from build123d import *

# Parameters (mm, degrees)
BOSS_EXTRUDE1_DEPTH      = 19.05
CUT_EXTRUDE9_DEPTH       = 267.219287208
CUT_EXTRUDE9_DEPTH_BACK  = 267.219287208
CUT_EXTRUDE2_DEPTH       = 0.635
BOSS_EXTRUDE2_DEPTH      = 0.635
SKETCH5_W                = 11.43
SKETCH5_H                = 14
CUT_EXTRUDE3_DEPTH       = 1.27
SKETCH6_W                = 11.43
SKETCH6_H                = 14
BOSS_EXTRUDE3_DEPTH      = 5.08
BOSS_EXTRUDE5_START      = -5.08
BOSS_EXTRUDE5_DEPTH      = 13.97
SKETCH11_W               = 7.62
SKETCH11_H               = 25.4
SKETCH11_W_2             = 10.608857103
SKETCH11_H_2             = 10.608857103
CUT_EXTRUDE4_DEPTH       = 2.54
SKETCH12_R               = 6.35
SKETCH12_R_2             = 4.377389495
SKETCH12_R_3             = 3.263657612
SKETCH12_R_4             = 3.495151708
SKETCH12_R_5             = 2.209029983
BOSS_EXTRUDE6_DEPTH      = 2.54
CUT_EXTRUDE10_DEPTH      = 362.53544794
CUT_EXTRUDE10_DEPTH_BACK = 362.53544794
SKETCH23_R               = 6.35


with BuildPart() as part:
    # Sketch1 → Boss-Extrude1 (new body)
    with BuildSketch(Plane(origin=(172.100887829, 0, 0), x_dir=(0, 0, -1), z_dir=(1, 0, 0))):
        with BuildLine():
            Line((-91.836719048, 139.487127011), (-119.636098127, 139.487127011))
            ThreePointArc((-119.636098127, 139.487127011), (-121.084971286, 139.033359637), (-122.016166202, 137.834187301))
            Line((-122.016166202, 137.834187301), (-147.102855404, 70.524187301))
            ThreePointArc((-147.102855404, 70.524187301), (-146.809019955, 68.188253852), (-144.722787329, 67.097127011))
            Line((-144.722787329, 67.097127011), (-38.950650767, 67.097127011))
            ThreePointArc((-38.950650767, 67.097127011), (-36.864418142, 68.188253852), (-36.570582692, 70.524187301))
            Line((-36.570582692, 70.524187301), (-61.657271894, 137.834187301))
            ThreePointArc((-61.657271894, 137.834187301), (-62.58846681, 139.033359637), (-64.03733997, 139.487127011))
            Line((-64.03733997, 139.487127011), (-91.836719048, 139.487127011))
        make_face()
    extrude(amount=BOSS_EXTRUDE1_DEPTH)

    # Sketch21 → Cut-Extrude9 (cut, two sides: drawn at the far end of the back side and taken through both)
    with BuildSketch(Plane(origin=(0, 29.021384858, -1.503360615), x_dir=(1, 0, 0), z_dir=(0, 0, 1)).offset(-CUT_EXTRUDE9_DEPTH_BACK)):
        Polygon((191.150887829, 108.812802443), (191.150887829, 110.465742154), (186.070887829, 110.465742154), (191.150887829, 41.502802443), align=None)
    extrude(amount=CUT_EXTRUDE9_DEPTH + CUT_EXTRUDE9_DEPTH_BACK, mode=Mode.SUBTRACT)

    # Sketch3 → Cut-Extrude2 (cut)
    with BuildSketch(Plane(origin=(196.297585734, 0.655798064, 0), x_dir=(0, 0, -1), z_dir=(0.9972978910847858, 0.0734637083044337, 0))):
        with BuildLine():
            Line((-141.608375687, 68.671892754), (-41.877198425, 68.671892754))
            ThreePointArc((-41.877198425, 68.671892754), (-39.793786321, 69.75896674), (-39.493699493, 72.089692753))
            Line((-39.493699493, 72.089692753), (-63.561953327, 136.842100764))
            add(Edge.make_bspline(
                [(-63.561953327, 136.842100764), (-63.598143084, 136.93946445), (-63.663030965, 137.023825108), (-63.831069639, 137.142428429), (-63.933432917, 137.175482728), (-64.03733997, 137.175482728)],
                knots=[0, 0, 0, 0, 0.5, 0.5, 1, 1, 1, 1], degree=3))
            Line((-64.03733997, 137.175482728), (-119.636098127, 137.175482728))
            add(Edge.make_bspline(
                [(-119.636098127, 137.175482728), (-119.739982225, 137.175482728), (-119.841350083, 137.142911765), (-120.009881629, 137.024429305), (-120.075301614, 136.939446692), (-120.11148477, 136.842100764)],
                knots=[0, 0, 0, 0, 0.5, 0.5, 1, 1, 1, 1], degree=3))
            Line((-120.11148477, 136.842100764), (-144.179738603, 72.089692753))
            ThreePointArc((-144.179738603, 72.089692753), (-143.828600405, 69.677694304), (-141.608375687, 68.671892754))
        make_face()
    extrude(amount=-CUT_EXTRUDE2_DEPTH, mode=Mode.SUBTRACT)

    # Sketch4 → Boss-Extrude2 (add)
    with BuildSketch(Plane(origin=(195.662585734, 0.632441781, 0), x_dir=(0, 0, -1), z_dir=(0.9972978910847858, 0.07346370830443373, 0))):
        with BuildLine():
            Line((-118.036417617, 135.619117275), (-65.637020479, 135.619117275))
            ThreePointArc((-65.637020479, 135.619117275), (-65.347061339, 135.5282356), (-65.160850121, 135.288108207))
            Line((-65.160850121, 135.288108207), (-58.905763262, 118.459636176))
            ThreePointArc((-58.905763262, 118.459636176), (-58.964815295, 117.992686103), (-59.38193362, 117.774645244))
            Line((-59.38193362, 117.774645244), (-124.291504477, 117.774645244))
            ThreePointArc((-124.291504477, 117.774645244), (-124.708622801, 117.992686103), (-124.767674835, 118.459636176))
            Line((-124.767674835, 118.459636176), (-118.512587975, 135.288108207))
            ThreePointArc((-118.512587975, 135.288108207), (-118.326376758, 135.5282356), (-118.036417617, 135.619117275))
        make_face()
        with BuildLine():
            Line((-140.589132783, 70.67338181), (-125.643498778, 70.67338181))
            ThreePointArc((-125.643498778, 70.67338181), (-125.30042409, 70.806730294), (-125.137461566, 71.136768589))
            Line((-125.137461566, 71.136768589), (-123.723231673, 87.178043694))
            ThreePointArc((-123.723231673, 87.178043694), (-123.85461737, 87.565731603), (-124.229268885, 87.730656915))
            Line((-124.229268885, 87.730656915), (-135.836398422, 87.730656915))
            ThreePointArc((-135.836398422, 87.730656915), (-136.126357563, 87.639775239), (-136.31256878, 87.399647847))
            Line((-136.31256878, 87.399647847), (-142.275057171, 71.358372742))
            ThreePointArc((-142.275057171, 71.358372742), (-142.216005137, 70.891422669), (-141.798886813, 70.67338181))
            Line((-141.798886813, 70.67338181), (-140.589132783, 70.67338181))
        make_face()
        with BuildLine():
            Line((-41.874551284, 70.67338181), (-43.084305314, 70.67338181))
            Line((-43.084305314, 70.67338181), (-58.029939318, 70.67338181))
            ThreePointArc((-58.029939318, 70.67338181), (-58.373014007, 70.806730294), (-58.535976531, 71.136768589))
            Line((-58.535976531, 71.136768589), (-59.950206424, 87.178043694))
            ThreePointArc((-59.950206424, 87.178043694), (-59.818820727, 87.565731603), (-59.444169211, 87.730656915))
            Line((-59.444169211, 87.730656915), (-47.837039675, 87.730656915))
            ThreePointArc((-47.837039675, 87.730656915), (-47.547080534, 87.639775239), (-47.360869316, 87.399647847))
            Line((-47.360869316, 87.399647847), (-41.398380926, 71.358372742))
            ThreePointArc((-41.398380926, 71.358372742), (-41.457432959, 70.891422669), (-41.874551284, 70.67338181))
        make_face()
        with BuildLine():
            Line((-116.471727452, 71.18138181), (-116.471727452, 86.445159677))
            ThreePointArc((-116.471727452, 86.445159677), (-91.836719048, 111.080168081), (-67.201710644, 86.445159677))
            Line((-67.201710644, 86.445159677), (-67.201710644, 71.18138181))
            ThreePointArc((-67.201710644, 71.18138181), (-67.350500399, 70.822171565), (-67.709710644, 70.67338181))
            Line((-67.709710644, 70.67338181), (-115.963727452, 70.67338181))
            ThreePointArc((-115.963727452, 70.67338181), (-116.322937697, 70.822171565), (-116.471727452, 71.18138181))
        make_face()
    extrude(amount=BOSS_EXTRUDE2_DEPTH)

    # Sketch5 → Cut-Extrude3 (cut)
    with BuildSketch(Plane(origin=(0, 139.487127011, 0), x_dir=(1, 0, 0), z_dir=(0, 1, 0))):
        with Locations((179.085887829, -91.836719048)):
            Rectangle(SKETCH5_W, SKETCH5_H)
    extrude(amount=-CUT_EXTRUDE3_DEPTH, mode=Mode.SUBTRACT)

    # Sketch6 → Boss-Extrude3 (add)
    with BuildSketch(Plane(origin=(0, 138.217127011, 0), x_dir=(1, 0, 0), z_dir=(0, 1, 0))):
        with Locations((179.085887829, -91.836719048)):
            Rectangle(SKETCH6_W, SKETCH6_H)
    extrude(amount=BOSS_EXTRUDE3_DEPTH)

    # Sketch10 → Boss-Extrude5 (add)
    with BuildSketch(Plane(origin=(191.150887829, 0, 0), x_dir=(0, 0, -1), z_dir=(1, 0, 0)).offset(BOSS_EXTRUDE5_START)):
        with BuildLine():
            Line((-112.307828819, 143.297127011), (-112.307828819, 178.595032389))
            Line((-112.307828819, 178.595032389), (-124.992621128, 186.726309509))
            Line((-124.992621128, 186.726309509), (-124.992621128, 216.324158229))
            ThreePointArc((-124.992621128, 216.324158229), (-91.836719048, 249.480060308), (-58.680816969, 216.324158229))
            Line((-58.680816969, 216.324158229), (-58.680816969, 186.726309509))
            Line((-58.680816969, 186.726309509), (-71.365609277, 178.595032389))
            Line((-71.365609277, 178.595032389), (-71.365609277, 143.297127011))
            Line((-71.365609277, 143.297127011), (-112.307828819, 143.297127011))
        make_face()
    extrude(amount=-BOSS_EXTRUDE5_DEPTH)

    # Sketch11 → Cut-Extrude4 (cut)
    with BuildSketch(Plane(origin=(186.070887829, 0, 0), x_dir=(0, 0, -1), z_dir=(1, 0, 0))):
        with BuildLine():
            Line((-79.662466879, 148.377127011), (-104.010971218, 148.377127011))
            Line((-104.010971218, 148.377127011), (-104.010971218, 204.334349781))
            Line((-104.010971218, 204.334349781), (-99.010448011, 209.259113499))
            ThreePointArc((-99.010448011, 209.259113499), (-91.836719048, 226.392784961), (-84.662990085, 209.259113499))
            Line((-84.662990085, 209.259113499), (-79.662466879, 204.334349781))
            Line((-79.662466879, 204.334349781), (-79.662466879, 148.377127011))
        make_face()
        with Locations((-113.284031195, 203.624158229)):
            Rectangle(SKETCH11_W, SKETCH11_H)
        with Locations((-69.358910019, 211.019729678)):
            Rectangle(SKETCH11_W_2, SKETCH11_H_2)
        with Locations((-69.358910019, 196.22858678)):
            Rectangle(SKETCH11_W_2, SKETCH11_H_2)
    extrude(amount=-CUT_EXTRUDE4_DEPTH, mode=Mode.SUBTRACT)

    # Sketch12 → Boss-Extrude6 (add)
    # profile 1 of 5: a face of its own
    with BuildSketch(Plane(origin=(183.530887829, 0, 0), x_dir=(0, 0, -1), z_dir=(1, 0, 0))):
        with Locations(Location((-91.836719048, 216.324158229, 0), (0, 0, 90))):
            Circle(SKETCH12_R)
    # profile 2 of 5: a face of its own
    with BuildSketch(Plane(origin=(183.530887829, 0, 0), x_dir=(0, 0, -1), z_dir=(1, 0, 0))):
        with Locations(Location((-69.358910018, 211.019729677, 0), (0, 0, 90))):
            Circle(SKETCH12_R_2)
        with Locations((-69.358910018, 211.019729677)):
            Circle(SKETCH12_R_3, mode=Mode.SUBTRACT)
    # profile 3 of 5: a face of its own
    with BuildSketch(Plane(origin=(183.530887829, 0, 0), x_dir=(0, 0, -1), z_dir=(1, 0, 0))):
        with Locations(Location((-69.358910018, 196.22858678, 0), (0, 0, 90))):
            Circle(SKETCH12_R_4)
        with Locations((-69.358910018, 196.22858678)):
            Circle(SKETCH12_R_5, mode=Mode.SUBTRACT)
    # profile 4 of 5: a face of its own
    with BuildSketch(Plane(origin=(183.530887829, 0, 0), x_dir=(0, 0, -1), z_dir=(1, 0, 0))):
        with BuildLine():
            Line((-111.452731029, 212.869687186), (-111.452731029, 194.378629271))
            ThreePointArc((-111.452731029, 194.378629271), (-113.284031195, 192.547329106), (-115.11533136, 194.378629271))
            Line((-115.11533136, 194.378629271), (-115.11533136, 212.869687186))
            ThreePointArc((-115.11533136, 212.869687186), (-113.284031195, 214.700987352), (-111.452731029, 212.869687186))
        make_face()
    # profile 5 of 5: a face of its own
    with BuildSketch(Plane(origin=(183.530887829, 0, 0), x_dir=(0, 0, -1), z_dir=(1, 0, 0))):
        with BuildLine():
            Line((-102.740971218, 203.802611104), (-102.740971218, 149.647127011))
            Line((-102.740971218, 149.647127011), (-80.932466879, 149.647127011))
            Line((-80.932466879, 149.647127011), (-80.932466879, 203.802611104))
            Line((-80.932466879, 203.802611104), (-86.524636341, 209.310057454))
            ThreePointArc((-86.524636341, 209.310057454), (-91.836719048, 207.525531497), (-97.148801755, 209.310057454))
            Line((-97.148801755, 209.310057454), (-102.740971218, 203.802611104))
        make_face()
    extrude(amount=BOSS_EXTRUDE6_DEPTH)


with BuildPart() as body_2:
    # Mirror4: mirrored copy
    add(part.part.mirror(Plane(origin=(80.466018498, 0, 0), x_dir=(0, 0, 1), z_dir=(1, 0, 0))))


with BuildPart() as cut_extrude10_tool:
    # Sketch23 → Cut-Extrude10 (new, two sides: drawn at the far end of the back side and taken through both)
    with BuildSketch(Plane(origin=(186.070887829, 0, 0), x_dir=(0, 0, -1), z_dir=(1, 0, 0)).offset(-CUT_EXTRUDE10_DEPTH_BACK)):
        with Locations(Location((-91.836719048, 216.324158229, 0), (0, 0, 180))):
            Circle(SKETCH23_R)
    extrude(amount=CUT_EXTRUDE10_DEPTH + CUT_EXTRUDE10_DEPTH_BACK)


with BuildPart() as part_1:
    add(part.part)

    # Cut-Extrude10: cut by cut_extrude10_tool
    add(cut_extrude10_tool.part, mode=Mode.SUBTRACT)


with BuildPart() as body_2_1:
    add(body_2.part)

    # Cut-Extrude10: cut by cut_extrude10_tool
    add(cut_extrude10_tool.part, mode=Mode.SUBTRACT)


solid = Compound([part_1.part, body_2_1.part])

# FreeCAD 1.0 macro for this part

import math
import FreeCAD as App
import Part
import Sketcher
from FreeCAD import Vector
Q = App.Units.Quantity


def add_polygon(sketch, points):
    """Adds a closed chain of lines whose ends are joined by coincident constraints."""
    first, n = sketch.GeometryCount, len(points)
    for a, b in zip(points, points[1:] + points[:1]):
        sketch.addGeometry(Part.LineSegment(App.Vector(*a, 0), App.Vector(*b, 0)), False)
    for i in range(n):
        sketch.addConstraint(Sketcher.Constraint("Coincident", first + i, 2, first + (i + 1) % n, 1))

doc = App.newDocument("Part")
body = doc.addObject("PartDesign::Body", "Body")

sketch1 = body.newObject("Sketcher::SketchObject", "Sketch")
sketch1.AttachmentSupport = (doc.getObject("YZ_Plane"), [""])
sketch1.MapMode = "FlatFace"
sketch1.AttachmentOffset = App.Placement(Vector(0, 0, 172.100888), App.Rotation())
sketch1.addGeometry([
    Part.ArcOfCircle(Part.Circle(Vector(136.947127, 119.636098, 0), Vector(0, 0, 1), 2.54), math.radians(0), math.radians(69.559387)),
    Part.LineSegment(Vector(137.834187, 122.016166, 0), Vector(70.524187, 147.102855, 0)),
    Part.ArcOfCircle(Part.Circle(Vector(69.637127, 144.722787, 0), Vector(0, 0, 1), 2.54), math.radians(69.559387), math.radians(180)),
    Part.LineSegment(Vector(67.097127, 144.722787, 0), Vector(67.097127, 38.950651, 0)),
    Part.ArcOfCircle(Part.Circle(Vector(69.637127, 38.950651, 0), Vector(0, 0, 1), 2.54), math.radians(-180), math.radians(-69.559387)),
    Part.LineSegment(Vector(70.524187, 36.570583, 0), Vector(137.834187, 61.657272, 0)),
    Part.ArcOfCircle(Part.Circle(Vector(136.947127, 64.03734, 0), Vector(0, 0, 1), 2.54), math.radians(-69.559387), math.radians(0)),
    Part.LineSegment(Vector(139.487127, 64.03734, 0), Vector(139.487127, 119.636098, 0)),
], False)
sketch1.addConstraint([
    Sketcher.Constraint("Tangent", 0, 2, 1, 1),
    Sketcher.Constraint("Tangent", 1, 2, 2, 1),
    Sketcher.Constraint("Tangent", 2, 2, 3, 1),
    Sketcher.Constraint("Tangent", 3, 2, 4, 1),
    Sketcher.Constraint("Tangent", 4, 2, 5, 1),
    Sketcher.Constraint("Tangent", 5, 2, 6, 1),
    Sketcher.Constraint("Tangent", 6, 2, 7, 1),
    Sketcher.Constraint("Tangent", 7, 2, 0, 1),
    Sketcher.Constraint("Vertical", 3),
    Sketcher.Constraint("Vertical", 7),
    Sketcher.Constraint("Equal", 0, 2),
    Sketcher.Constraint("Equal", 2, 4),
    Sketcher.Constraint("Equal", 4, 6),
    Sketcher.Constraint("Vertical", 1, 2, 4, 2),
    Sketcher.Constraint("Radius", 0, Q("0.1 in")),
    Sketcher.Constraint("DistanceX", 2, 3, 0, 3, Q("2.65 in")),
    Sketcher.Constraint("DistanceY", 7, 1, 7, 2, Q("55.598758 mm")),
    Sketcher.Constraint("DistanceY", -1, 1, 0, 3, Q("119.636098 mm")),
    Sketcher.Constraint("DistanceY", 3, 2, 3, 1, Q("105.772137 mm")),
    Sketcher.Constraint("DistanceX", -1, 1, 0, 3, Q("136.947127 mm")),
])
pad1 = body.newObject("PartDesign::Pad", "Pad")
pad1.Profile = sketch1
pad1.Length = Q("0.75 in")

sketch2 = body.newObject("Sketcher::SketchObject", "Sketch001")
sketch2.AttachmentSupport = (doc.getObject("XY_Plane"), [""])
sketch2.MapMode = "FlatFace"
sketch2.AttachmentOffset = App.Placement(Vector(0, 0, -1.503361), App.Rotation())
add_polygon(sketch2, [(191.150888, 139.487127), (186.070888, 139.487127), (191.150888, 70.524187)])
sketch2.addConstraint([
    Sketcher.Constraint("Horizontal", 0),
    Sketcher.Constraint("Vertical", 2),
    Sketcher.Constraint("DistanceX", 0, 2, 0, 1, Q("0.2 in")),
    Sketcher.Constraint("DistanceY", 2, 1, 2, 2, Q("68.96294 mm")),
    Sketcher.Constraint("DistanceX", -1, 1, 0, 2, Q("186.070888 mm")),
    Sketcher.Constraint("DistanceY", -1, 1, 0, 2, Q("139.487127 mm")),
])
pocket1 = body.newObject("PartDesign::Pocket", "Pocket")
pocket1.Profile = sketch2
pocket1.Type = "ThroughAll"
pocket1.Midplane = True

sketch3 = body.newObject("Sketcher::SketchObject", "Sketch002")
sketch3.Placement = App.Placement(Vector(196.297586, 0.655798, 0), App.Rotation(Vector(0, 0, -1), Vector(-0.073463708, 0.997297891, 0), Vector(0.997297891, 0.073463708, 0), "ZXY"))
sketch3.addGeometry([
    Part.LineSegment(Vector(-141.608376, 68.671893, 0), Vector(-41.877198, 68.671893, 0)),
    Part.ArcOfCircle(Part.Circle(Vector(-41.877198, 71.211893, 0), Vector(0, 0, 1), 2.54), math.radians(-90), math.radians(20.217849)),
    Part.LineSegment(Vector(-39.493699, 72.089693, 0), Vector(-63.561953, 136.842101, 0)),
    Part.BSplineCurve([Vector(-63.561953, 136.842101, 0), Vector(-63.598143, 136.939464, 0), Vector(-63.663031, 137.023825, 0), Vector(-63.83107, 137.142428, 0), Vector(-63.933433, 137.175483, 0), Vector(-64.03734, 137.175483, 0)], [4, 2, 4], [0, 0.5, 1], False, 3, [1, 1, 1, 1, 1, 1], False),
    Part.LineSegment(Vector(-64.03734, 137.175483, 0), Vector(-119.636098, 137.175483, 0)),
    Part.BSplineCurve([Vector(-119.636098, 137.175483, 0), Vector(-119.739982, 137.175483, 0), Vector(-119.84135, 137.142912, 0), Vector(-120.009882, 137.024429, 0), Vector(-120.075302, 136.939447, 0), Vector(-120.111485, 136.842101, 0)], [4, 2, 4], [0, 0.5, 1], False, 3, [1, 1, 1, 1, 1, 1], False),
    Part.LineSegment(Vector(-120.111485, 136.842101, 0), Vector(-144.179739, 72.089693, 0)),
    Part.ArcOfCircle(Part.Circle(Vector(-141.798887, 71.204738, 0), Vector(0, 0, 1), 2.54), math.radians(159.610068), math.radians(274.301474)),
], False)
sketch3.addConstraint([
    Sketcher.Constraint("Block", 3),
    Sketcher.Constraint("Block", 5),
    Sketcher.Constraint("Coincident", 0, 2, 1, 1),
    Sketcher.Constraint("Coincident", 1, 2, 2, 1),
    Sketcher.Constraint("Coincident", 2, 2, 3, 1),
    Sketcher.Constraint("Coincident", 3, 2, 4, 1),
    Sketcher.Constraint("Coincident", 4, 2, 5, 1),
    Sketcher.Constraint("Coincident", 5, 2, 6, 1),
    Sketcher.Constraint("Coincident", 6, 2, 7, 1),
    Sketcher.Constraint("Coincident", 7, 2, 0, 1),
    Sketcher.Constraint("Horizontal", 0),
    Sketcher.Constraint("Radius", 1, Q("0.1 in")),
    Sketcher.Constraint("Radius", 7, Q("0.1 in")),
    Sketcher.Constraint("DistanceX", 1, 3, -1, 1, Q("41.877198 mm")),
    Sketcher.Constraint("DistanceX", 0, 2, -1, 1, Q("41.877198 mm")),
    Sketcher.Constraint("DistanceX", 1, 2, -1, 1, Q("39.493699 mm")),
    Sketcher.Constraint("DistanceY", 1, 3, 6, 2, Q("0.8778 mm")),
    Sketcher.Constraint("DistanceX", 0, 1, 0, 2, Q("99.731177 mm")),
    Sketcher.Constraint("DistanceY", -1, 1, 7, 3, Q("71.204738 mm")),
    Sketcher.Constraint("DistanceX", 6, 2, -1, 1, Q("144.179739 mm")),
])
pocket2 = body.newObject("PartDesign::Pocket", "Pocket001")
pocket2.Profile = sketch3
pocket2.Length = Q("0.025 in")

sketch4 = body.newObject("Sketcher::SketchObject", "Sketch003")
sketch4.Placement = App.Placement(Vector(195.662586, 0.632442, 0), App.Rotation(Vector(0, 0, -1), Vector(-0.073463708, 0.997297891, 0), Vector(0.997297891, 0.073463708, 0), "ZXY"))
sketch4.addGeometry([
    Part.LineSegment(Vector(-65.63702, 135.619117, 0), Vector(-118.036418, 135.619117, 0)),
    Part.ArcOfCircle(Part.Circle(Vector(-118.036418, 135.111117, 0), Vector(0, 0, 1), 0.508), math.radians(90), math.radians(159.610068)),
    Part.LineSegment(Vector(-118.512588, 135.288108, 0), Vector(-124.767675, 118.459636, 0)),
    Part.ArcOfCircle(Part.Circle(Vector(-124.291504, 118.282645, 0), Vector(0, 0, 1), 0.508), math.radians(159.610068), math.radians(270)),
    Part.LineSegment(Vector(-124.291504, 117.774645, 0), Vector(-59.381934, 117.774645, 0)),
    Part.ArcOfCircle(Part.Circle(Vector(-59.381934, 118.282645, 0), Vector(0, 0, 1), 0.508), math.radians(-90), math.radians(20.389932)),
    Part.LineSegment(Vector(-58.905763, 118.459636, 0), Vector(-65.16085, 135.288108, 0)),
    Part.ArcOfCircle(Part.Circle(Vector(-65.63702, 135.111117, 0), Vector(0, 0, 1), 0.508), math.radians(20.389932), math.radians(90)),
    Part.ArcOfCircle(Part.Circle(Vector(-125.643499, 71.181382, 0), Vector(0, 0, 1), 0.508), math.radians(-90), math.radians(-5.03828)),
    Part.LineSegment(Vector(-125.137462, 71.136769, 0), Vector(-123.723232, 87.178044, 0)),
    Part.ArcOfCircle(Part.Circle(Vector(-124.229269, 87.222657, 0), Vector(0, 0, 1), 0.508), math.radians(-5.03828), math.radians(90)),
    Part.LineSegment(Vector(-124.229269, 87.730657, 0), Vector(-135.836398, 87.730657, 0)),
    Part.ArcOfCircle(Part.Circle(Vector(-135.836398, 87.222657, 0), Vector(0, 0, 1), 0.508), math.radians(90), math.radians(159.610068)),
    Part.LineSegment(Vector(-136.312569, 87.399648, 0), Vector(-142.275057, 71.358373, 0)),
    Part.ArcOfCircle(Part.Circle(Vector(-141.798887, 71.181382, 0), Vector(0, 0, 1), 0.508), math.radians(159.610068), math.radians(270)),
    Part.LineSegment(Vector(-141.798887, 70.673382, 0), Vector(-125.643499, 70.673382, 0)),
    Part.LineSegment(Vector(-58.029939, 70.673382, 0), Vector(-41.874551, 70.673382, 0)),
    Part.ArcOfCircle(Part.Circle(Vector(-41.874551, 71.181382, 0), Vector(0, 0, 1), 0.508), math.radians(-90), math.radians(20.389932)),
    Part.LineSegment(Vector(-41.398381, 71.358373, 0), Vector(-47.360869, 87.399648, 0)),
    Part.ArcOfCircle(Part.Circle(Vector(-47.83704, 87.222657, 0), Vector(0, 0, 1), 0.508), math.radians(20.389933), math.radians(90)),
    Part.LineSegment(Vector(-47.83704, 87.730657, 0), Vector(-59.444169, 87.730657, 0)),
    Part.ArcOfCircle(Part.Circle(Vector(-59.444169, 87.222657, 0), Vector(0, 0, 1), 0.508), math.radians(90), math.radians(185.03828)),
    Part.LineSegment(Vector(-59.950206, 87.178044, 0), Vector(-58.535977, 71.136769, 0)),
    Part.ArcOfCircle(Part.Circle(Vector(-58.029939, 71.181382, 0), Vector(0, 0, 1), 0.508), math.radians(-174.96172), math.radians(-90)),
    Part.LineSegment(Vector(-116.471727, 86.44516, 0), Vector(-116.471727, 71.181382, 0)),
    Part.ArcOfCircle(Part.Circle(Vector(-115.963727, 71.181382, 0), Vector(0, 0, 1), 0.508), math.radians(180), math.radians(270)),
    Part.LineSegment(Vector(-115.963727, 70.673382, 0), Vector(-67.709711, 70.673382, 0)),
    Part.ArcOfCircle(Part.Circle(Vector(-67.709711, 71.181382, 0), Vector(0, 0, 1), 0.508), math.radians(-90), math.radians(0)),
    Part.LineSegment(Vector(-67.201711, 71.181382, 0), Vector(-67.201711, 86.44516, 0)),
    Part.ArcOfCircle(Part.Circle(Vector(-91.836719, 86.44516, 0), Vector(0, 0, 1), 24.635008), math.radians(0), math.radians(180)),
], False)
sketch4.addConstraint([
    Sketcher.Constraint("Tangent", 0, 2, 1, 1),
    Sketcher.Constraint("Tangent", 1, 2, 2, 1),
    Sketcher.Constraint("Tangent", 2, 2, 3, 1),
    Sketcher.Constraint("Tangent", 3, 2, 4, 1),
    Sketcher.Constraint("Tangent", 4, 2, 5, 1),
    Sketcher.Constraint("Tangent", 5, 2, 6, 1),
    Sketcher.Constraint("Tangent", 6, 2, 7, 1),
    Sketcher.Constraint("Tangent", 7, 2, 0, 1),
    Sketcher.Constraint("Tangent", 8, 2, 9, 1),
    Sketcher.Constraint("Tangent", 9, 2, 10, 1),
    Sketcher.Constraint("Tangent", 10, 2, 11, 1),
    Sketcher.Constraint("Tangent", 11, 2, 12, 1),
    Sketcher.Constraint("Tangent", 12, 2, 13, 1),
    Sketcher.Constraint("Tangent", 13, 2, 14, 1),
    Sketcher.Constraint("Tangent", 14, 2, 15, 1),
    Sketcher.Constraint("Tangent", 15, 2, 8, 1),
    Sketcher.Constraint("Tangent", 16, 2, 17, 1),
    Sketcher.Constraint("Tangent", 17, 2, 18, 1),
    Sketcher.Constraint("Tangent", 18, 2, 19, 1),
    Sketcher.Constraint("Tangent", 19, 2, 20, 1),
    Sketcher.Constraint("Tangent", 20, 2, 21, 1),
    Sketcher.Constraint("Tangent", 21, 2, 22, 1),
    Sketcher.Constraint("Tangent", 22, 2, 23, 1),
    Sketcher.Constraint("Tangent", 23, 2, 16, 1),
    Sketcher.Constraint("Tangent", 24, 2, 25, 1),
    Sketcher.Constraint("Tangent", 25, 2, 26, 1),
    Sketcher.Constraint("Tangent", 26, 2, 27, 1),
    Sketcher.Constraint("Tangent", 27, 2, 28, 1),
    Sketcher.Constraint("Tangent", 28, 2, 29, 1),
    Sketcher.Constraint("Tangent", 29, 2, 24, 1),
    Sketcher.Constraint("Horizontal", 0),
    Sketcher.Constraint("Horizontal", 4),
    Sketcher.Constraint("Horizontal", 11),
    Sketcher.Constraint("Horizontal", 15),
    Sketcher.Constraint("Horizontal", 16),
    Sketcher.Constraint("Horizontal", 20),
    Sketcher.Constraint("Vertical", 24),
    Sketcher.Constraint("Horizontal", 26),
    Sketcher.Constraint("Vertical", 28),
    Sketcher.Constraint("Equal", 1, 3),
    Sketcher.Constraint("Equal", 3, 5),
    Sketcher.Constraint("Equal", 5, 7),
    Sketcher.Constraint("Equal", 7, 8),
    Sketcher.Constraint("Equal", 8, 10),
    Sketcher.Constraint("Equal", 10, 12),
    Sketcher.Constraint("Equal", 12, 14),
    Sketcher.Constraint("Equal", 14, 17),
    Sketcher.Constraint("Equal", 17, 19),
    Sketcher.Constraint("Equal", 19, 21),
    Sketcher.Constraint("Equal", 21, 23),
    Sketcher.Constraint("Equal", 23, 25),
    Sketcher.Constraint("Equal", 25, 27),
    Sketcher.Constraint("Parallel", 2, 13),
    Sketcher.Constraint("Parallel", 6, 18),
    Sketcher.Constraint("Horizontal", 14, 3, 17, 3),
    Sketcher.Constraint("Horizontal", 12, 3, 19, 3),
    Sketcher.Constraint("Horizontal", 23, 3, 25, 3),
    Sketcher.Constraint("Horizontal", 2, 2, 5, 2),
    Sketcher.Constraint("Horizontal", 9, 2, 21, 2),
    Sketcher.Constraint("Equal", 15, 16),
    Sketcher.Constraint("Radius", 1, Q("0.02 in")),
    Sketcher.Constraint("Radius", 29, Q("24.635008 mm")),
    Sketcher.Constraint("DistanceX", 4, 1, 4, 2, Q("64.909571 mm")),
    Sketcher.Constraint("DistanceX", 11, 2, 11, 1, Q("11.60713 mm")),
    Sketcher.Constraint("DistanceX", 15, 1, 15, 2, Q("16.155388 mm")),
    Sketcher.Constraint("DistanceX", 8, 3, -1, 1, Q("125.643499 mm")),
    Sketcher.Constraint("DistanceX", 12, 3, -1, 1, Q("135.836398 mm")),
    Sketcher.Constraint("DistanceX", 10, 3, 21, 3, Q("64.7851 mm")),
    Sketcher.Constraint("DistanceX", 0, 2, 0, 1, Q("52.399397 mm")),
    Sketcher.Constraint("DistanceY", 24, 2, 24, 1, Q("15.263778 mm")),
    Sketcher.Constraint("DistanceX", 7, 3, -1, 1, Q("65.63702 mm")),
    Sketcher.Constraint("DistanceY", -1, 1, 8, 3, Q("71.181382 mm")),
    Sketcher.Constraint("DistanceX", 27, 3, -1, 1, Q("67.709711 mm")),
    Sketcher.Constraint("DistanceY", -1, 1, 1, 2, Q("135.288108 mm")),
    Sketcher.Constraint("DistanceY", 10, 3, 3, 3, Q("31.059988 mm")),
])
pad2 = body.newObject("PartDesign::Pad", "Pad001")
pad2.Profile = sketch4
pad2.Length = Q("0.025 in")

sketch5 = body.newObject("Sketcher::SketchObject", "Sketch004")
sketch5.AttachmentSupport = (doc.getObject("XZ_Plane"), [""])
sketch5.MapMode = "FlatFace"
sketch5.AttachmentOffset = App.Placement(Vector(0, 0, -139.487127), App.Rotation())
add_polygon(sketch5, [(173.370888, 84.836719), (173.370888, 98.836719), (184.800888, 98.836719), (184.800888, 84.836719)])
sketch5.addConstraint([
    Sketcher.Constraint("Vertical", 0),
    Sketcher.Constraint("Horizontal", 1),
    Sketcher.Constraint("Vertical", 2),
    Sketcher.Constraint("Horizontal", 3),
    Sketcher.Constraint("DistanceX", 1, 1, 1, 2, Q("0.45 in")),
    Sketcher.Constraint("DistanceY", 0, 1, 0, 2, Q("14 mm")),
    Sketcher.Constraint("DistanceY", -1, 1, 0, 2, Q("98.836719 mm")),
    Sketcher.Constraint("DistanceX", -1, 1, 0, 2, Q("173.370888 mm")),
])
pocket3 = body.newObject("PartDesign::Pocket", "Pocket002")
pocket3.Profile = sketch5
pocket3.Length = Q("0.05 in")
pocket3.Reversed = True

sketch6 = body.newObject("Sketcher::SketchObject", "Sketch005")
sketch6.AttachmentSupport = (doc.getObject("XZ_Plane"), [""])
sketch6.MapMode = "FlatFace"
sketch6.AttachmentOffset = App.Placement(Vector(0, 0, -138.217127), App.Rotation())
add_polygon(sketch6, [(173.370888, 84.836719), (173.370888, 98.836719), (184.800888, 98.836719), (184.800888, 84.836719)])
sketch6.addConstraint([
    Sketcher.Constraint("Vertical", 0),
    Sketcher.Constraint("Horizontal", 1),
    Sketcher.Constraint("Vertical", 2),
    Sketcher.Constraint("Horizontal", 3),
    Sketcher.Constraint("DistanceX", 1, 1, 1, 2, Q("0.45 in")),
    Sketcher.Constraint("DistanceY", 0, 1, 0, 2, Q("14 mm")),
    Sketcher.Constraint("DistanceY", -1, 1, 0, 2, Q("98.836719 mm")),
    Sketcher.Constraint("DistanceX", -1, 1, 0, 2, Q("173.370888 mm")),
])
pad3 = body.newObject("PartDesign::Pad", "Pad002")
pad3.Profile = sketch6
pad3.Length = Q("0.2 in")
pad3.Reversed = True

sketch7 = body.newObject("Sketcher::SketchObject", "Sketch006")
sketch7.AttachmentSupport = (doc.getObject("YZ_Plane"), [""])
sketch7.MapMode = "FlatFace"
sketch7.AttachmentOffset = App.Placement(Vector(0, 0, 186.070888), App.Rotation())
sketch7.addGeometry([
    Part.LineSegment(Vector(178.595032, 112.307829, 0), Vector(143.297127, 112.307829, 0)),
    Part.LineSegment(Vector(143.297127, 112.307829, 0), Vector(143.297127, 71.365609, 0)),
    Part.LineSegment(Vector(143.297127, 71.365609, 0), Vector(178.595032, 71.365609, 0)),
    Part.LineSegment(Vector(178.595032, 71.365609, 0), Vector(186.72631, 58.680817, 0)),
    Part.LineSegment(Vector(186.72631, 58.680817, 0), Vector(216.324158, 58.680817, 0)),
    Part.ArcOfCircle(Part.Circle(Vector(216.324158, 91.836719, 0), Vector(0, 0, 1), 33.155902), math.radians(-90), math.radians(90)),
    Part.LineSegment(Vector(216.324158, 124.992621, 0), Vector(186.72631, 124.992621, 0)),
    Part.LineSegment(Vector(186.72631, 124.992621, 0), Vector(178.595032, 112.307829, 0)),
], False)
sketch7.addConstraint([
    Sketcher.Constraint("Coincident", 0, 2, 1, 1),
    Sketcher.Constraint("Coincident", 1, 2, 2, 1),
    Sketcher.Constraint("Coincident", 2, 2, 3, 1),
    Sketcher.Constraint("Coincident", 3, 2, 4, 1),
    Sketcher.Constraint("Tangent", 4, 2, 5, 1),
    Sketcher.Constraint("Tangent", 5, 2, 6, 1),
    Sketcher.Constraint("Coincident", 6, 2, 7, 1),
    Sketcher.Constraint("Coincident", 7, 2, 0, 1),
    Sketcher.Constraint("Horizontal", 0),
    Sketcher.Constraint("Vertical", 1),
    Sketcher.Constraint("Horizontal", 2),
    Sketcher.Constraint("Horizontal", 4),
    Sketcher.Constraint("Horizontal", 6),
    Sketcher.Constraint("Vertical", 3, 2, 6, 2),
    Sketcher.Constraint("Vertical", 2, 2, 7, 2),
    Sketcher.Constraint("Equal", 3, 7),
    Sketcher.Constraint("Radius", 5, Q("33.155902 mm")),
    Sketcher.Constraint("DistanceX", 4, 1, 4, 2, Q("29.597849 mm")),
    Sketcher.Constraint("DistanceY", 1, 2, 1, 1, Q("40.94222 mm")),
    Sketcher.Constraint("DistanceX", 0, 2, 0, 1, Q("35.297905 mm")),
    Sketcher.Constraint("DistanceX", -1, 1, 5, 3, Q("216.324158 mm")),
    Sketcher.Constraint("DistanceY", -1, 1, 5, 3, Q("91.836719 mm")),
    Sketcher.Constraint("DistanceX", 0, 2, 5, 3, Q("73.027031 mm")),
])
pad4 = body.newObject("PartDesign::Pad", "Pad003")
pad4.Profile = sketch7
pad4.Length = Q("0.55 in")
pad4.Reversed = True

sketch8 = body.newObject("Sketcher::SketchObject", "Sketch007")
sketch8.AttachmentSupport = (doc.getObject("YZ_Plane"), [""])
sketch8.MapMode = "FlatFace"
sketch8.AttachmentOffset = App.Placement(Vector(0, 0, 186.070888), App.Rotation())
sketch8.addGeometry(Part.LineSegment(Vector(148.377127, 104.010971, 0), Vector(148.377127, 79.662467, 0)), False)
sketch8.addGeometry(Part.LineSegment(Vector(148.377127, 79.662467, 0), Vector(204.33435, 79.662467, 0)), False)
sketch8.addGeometry(Part.LineSegment(Vector(204.33435, 79.662467, 0), Vector(209.259113, 84.66299, 0)), False)
sketch8.addGeometry(Part.ArcOfCircle(Part.Circle(Vector(216.324158, 91.836719, 0), Vector(0, 0, 1), 10.068627), math.radians(-134.562671), math.radians(134.562671)), False)
sketch8.addGeometry(Part.LineSegment(Vector(209.259113, 99.010448, 0), Vector(204.33435, 104.010971, 0)), False)
sketch8.addGeometry(Part.LineSegment(Vector(204.33435, 104.010971, 0), Vector(148.377127, 104.010971, 0)), False)
add_polygon(sketch8, [(216.324158, 117.094031), (190.924158, 117.094031), (190.924158, 109.474031), (216.324158, 109.474031)])
add_polygon(sketch8, [(216.324158, 74.663339), (205.715301, 74.663339), (205.715301, 64.054481), (216.324158, 64.054481)])
add_polygon(sketch8, [(201.533015, 74.663339), (190.924158, 74.663339), (190.924158, 64.054481), (201.533015, 64.054481)])
sketch8.addConstraint([
    Sketcher.Constraint("Coincident", 0, 2, 1, 1),
    Sketcher.Constraint("Coincident", 1, 2, 2, 1),
    Sketcher.Constraint("Coincident", 2, 2, 3, 1),
    Sketcher.Constraint("Coincident", 3, 2, 4, 1),
    Sketcher.Constraint("Coincident", 4, 2, 5, 1),
    Sketcher.Constraint("Coincident", 5, 2, 0, 1),
    Sketcher.Constraint("Vertical", 0),
    Sketcher.Constraint("Horizontal", 1),
    Sketcher.Constraint("Horizontal", 5),
    Sketcher.Constraint("Horizontal", 6),
    Sketcher.Constraint("Vertical", 7),
    Sketcher.Constraint("Horizontal", 8),
    Sketcher.Constraint("Vertical", 9),
    Sketcher.Constraint("Horizontal", 10),
    Sketcher.Constraint("Vertical", 11),
    Sketcher.Constraint("Horizontal", 12),
    Sketcher.Constraint("Vertical", 13),
    Sketcher.Constraint("Horizontal", 14),
    Sketcher.Constraint("Vertical", 15),
    Sketcher.Constraint("Horizontal", 16),
    Sketcher.Constraint("Vertical", 17),
    Sketcher.Constraint("Horizontal", 13, 2, 14, 2),
    Sketcher.Constraint("Horizontal", 12, 2, 15, 2),
    Sketcher.Constraint("Vertical", 2, 2, 3, 2),
    Sketcher.Constraint("Vertical", 1, 2, 4, 2),
    Sketcher.Constraint("Vertical", 3, 3, 8, 2),
    Sketcher.Constraint("Vertical", 9, 2, 12, 2),
    Sketcher.Constraint("Vertical", 7, 2, 14, 2),
    Sketcher.Constraint("Equal", 12, 14),
    Sketcher.Constraint("Equal", 16, 11),
    Sketcher.Constraint("Equal", 2, 4),
    Sketcher.Constraint("DistanceX", 6, 2, 6, 1, Q("1 in")),
    Sketcher.Constraint("DistanceY", 7, 2, 7, 1, Q("0.3 in")),
    Sketcher.Constraint("Radius", 3, Q("10.068627 mm")),
    Sketcher.Constraint("DistanceX", -1, 1, 10, 2, Q("205.715301 mm")),
    Sketcher.Constraint("DistanceX", 1, 1, 1, 2, Q("55.957223 mm")),
    Sketcher.Constraint("DistanceX", 10, 2, 10, 1, Q("10.608857 mm")),
    Sketcher.Constraint("DistanceY", 0, 2, 0, 1, Q("24.348504 mm")),
    Sketcher.Constraint("DistanceY", -1, 1, 3, 3, Q("91.836719 mm")),
    Sketcher.Constraint("DistanceX", -1, 1, 1, 2, Q("204.33435 mm")),
    Sketcher.Constraint("DistanceY", -1, 1, 2, 2, Q("84.66299 mm")),
    Sketcher.Constraint("DistanceY", -1, 1, 6, 2, Q("117.094031 mm")),
    Sketcher.Constraint("DistanceY", -1, 1, 10, 2, Q("74.663339 mm")),
])
pocket4 = body.newObject("PartDesign::Pocket", "Pocket003")
pocket4.Profile = sketch8
pocket4.Length = Q("0.1 in")

sketch9 = body.newObject("Sketcher::SketchObject", "Sketch008")
sketch9.AttachmentSupport = (doc.getObject("YZ_Plane"), [""])
sketch9.MapMode = "FlatFace"
sketch9.AttachmentOffset = App.Placement(Vector(0, 0, 183.530888), App.Rotation())
sketch9.addGeometry([
    Part.Circle(Vector(216.324158, 91.836719, 0), Vector(0, 0, 1), 6.35),
    Part.Circle(Vector(211.01973, 69.35891, 0), Vector(0, 0, 1), 4.377389),
    Part.Circle(Vector(211.01973, 69.35891, 0), Vector(0, 0, 1), 3.263658),
    Part.Circle(Vector(196.228587, 69.35891, 0), Vector(0, 0, 1), 3.495152),
    Part.Circle(Vector(196.228587, 69.35891, 0), Vector(0, 0, 1), 2.20903),
    Part.LineSegment(Vector(194.378629, 111.452731, 0), Vector(212.869687, 111.452731, 0)),
    Part.ArcOfCircle(Part.Circle(Vector(212.869687, 113.284031, 0), Vector(0, 0, 1), 1.8313), math.radians(-90), math.radians(90)),
    Part.LineSegment(Vector(212.869687, 115.115331, 0), Vector(194.378629, 115.115331, 0)),
    Part.ArcOfCircle(Part.Circle(Vector(194.378629, 113.284031, 0), Vector(0, 0, 1), 1.8313), math.radians(90), math.radians(270)),
    Part.LineSegment(Vector(203.802611, 102.740971, 0), Vector(149.647127, 102.740971, 0)),
    Part.LineSegment(Vector(149.647127, 102.740971, 0), Vector(149.647127, 80.932467, 0)),
    Part.LineSegment(Vector(149.647127, 80.932467, 0), Vector(203.802611, 80.932467, 0)),
    Part.LineSegment(Vector(203.802611, 80.932467, 0), Vector(209.310057, 86.524636, 0)),
    Part.ArcOfCircle(Part.Circle(Vector(216.324158, 91.836719, 0), Vector(0, 0, 1), 8.798627), math.radians(142.861774), math.radians(217.138226)),
    Part.LineSegment(Vector(209.310057, 97.148802, 0), Vector(203.802611, 102.740971, 0)),
], False)
sketch9.addConstraint([
    Sketcher.Constraint("Tangent", 5, 2, 6, 1),
    Sketcher.Constraint("Tangent", 6, 2, 7, 1),
    Sketcher.Constraint("Tangent", 7, 2, 8, 1),
    Sketcher.Constraint("Tangent", 8, 2, 5, 1),
    Sketcher.Constraint("Coincident", 9, 2, 10, 1),
    Sketcher.Constraint("Coincident", 10, 2, 11, 1),
    Sketcher.Constraint("Coincident", 11, 2, 12, 1),
    Sketcher.Constraint("Coincident", 12, 2, 13, 2),
    Sketcher.Constraint("Coincident", 13, 1, 14, 1),
    Sketcher.Constraint("Coincident", 14, 2, 9, 1),
    Sketcher.Constraint("Horizontal", 5),
    Sketcher.Constraint("Horizontal", 7),
    Sketcher.Constraint("Horizontal", 9),
    Sketcher.Constraint("Vertical", 10),
    Sketcher.Constraint("Horizontal", 11),
    Sketcher.Constraint("Coincident", 2, 3, 1, 3),
    Sketcher.Constraint("Coincident", 4, 3, 3, 3),
    Sketcher.Constraint("Coincident", 13, 3, 0, 3),
    Sketcher.Constraint("Horizontal", 2, 3, 3, 3),
    Sketcher.Constraint("Vertical", 12, 2, 13, 1),
    Sketcher.Constraint("Vertical", 11, 2, 14, 2),
    Sketcher.Constraint("Equal", 12, 14),
    Sketcher.Constraint("Diameter", 0, Q("0.5 in")),
    Sketcher.Constraint("Radius", 6, Q("1.8313 mm")),
    Sketcher.Constraint("Diameter", 1, Q("8.754779 mm")),
    Sketcher.Constraint("Diameter", 4, Q("4.41806 mm")),
    Sketcher.Constraint("Diameter", 2, Q("6.527315 mm")),
    Sketcher.Constraint("Diameter", 3, Q("6.990303 mm")),
    Sketcher.Constraint("Radius", 13, Q("8.798627 mm")),
    Sketcher.Constraint("DistanceY", -1, 1, 13, 1, Q("97.148802 mm")),
    Sketcher.Constraint("DistanceX", 3, 3, 6, 3, Q("16.6411 mm")),
    Sketcher.Constraint("DistanceX", 8, 3, 1, 3, Q("16.6411 mm")),
    Sketcher.Constraint("DistanceX", 12, 2, 0, 3, Q("7.014101 mm")),
    Sketcher.Constraint("DistanceX", 5, 1, 5, 2, Q("18.491058 mm")),
    Sketcher.Constraint("DistanceX", 9, 2, 9, 1, Q("54.155484 mm")),
    Sketcher.Constraint("DistanceY", 10, 2, 10, 1, Q("21.808504 mm")),
    Sketcher.Constraint("DistanceX", -1, 1, 0, 3, Q("216.324158 mm")),
    Sketcher.Constraint("DistanceX", -1, 1, 1, 3, Q("211.01973 mm")),
    Sketcher.Constraint("DistanceY", -1, 1, 1, 3, Q("69.35891 mm")),
    Sketcher.Constraint("DistanceY", -1, 1, 6, 3, Q("113.284031 mm")),
    Sketcher.Constraint("DistanceX", -1, 1, 11, 2, Q("203.802611 mm")),
])
pad5 = body.newObject("PartDesign::Pad", "Pad004")
pad5.Profile = sketch9
pad5.Length = Q("0.1 in")
body2 = doc.addObject("PartDesign::Body", "Body001")
doc.recompute()

mirroring = doc.addObject("Part::Mirroring", "Mirroring")
mirroring.Source = body
mirroring.Base = Vector(80.466018, 0, 0)
mirroring.Normal = Vector(1, 0, 0)
body2.BaseFeature = mirroring
doc.recompute()
body3 = doc.addObject("PartDesign::Body", "Body002")

sketch10 = body3.newObject("Sketcher::SketchObject", "Sketch009")
sketch10.AttachmentSupport = (doc.getObject("YZ_Plane002"), [""])
sketch10.MapMode = "FlatFace"
sketch10.AttachmentOffset = App.Placement(Vector(0, 0, 186.070888), App.Rotation())
sketch10.addGeometry(Part.Circle(Vector(216.324158, 91.836719, 0), Vector(0, 0, 1), 6.35), False)
sketch10.addConstraint([
    Sketcher.Constraint("Diameter", 0, Q("0.5 in")),
    Sketcher.Constraint("DistanceX", -1, 1, 0, 3, Q("216.324158 mm")),
    Sketcher.Constraint("DistanceY", -1, 1, 0, 3, Q("91.836719 mm")),
])
pad6 = body3.newObject("PartDesign::Pad", "Pad005")
pad6.Profile = sketch10
pad6.Type = "TwoLengths"
pad6.Length = 362.535448
pad6.Length2 = 362.535448
doc.recompute()

body4 = doc.addObject("PartDesign::Body", "Body003")
body4.BaseFeature = body3
boolean = body.newObject("PartDesign::Boolean", "Boolean")
boolean.Type = "Cut"
boolean.addObjects([body4])
doc.recompute()

boolean2 = body2.newObject("PartDesign::Boolean", "Boolean001")
boolean2.Type = "Cut"
boolean2.addObjects([body3])
mirroring.Visibility = False

doc.recompute()
